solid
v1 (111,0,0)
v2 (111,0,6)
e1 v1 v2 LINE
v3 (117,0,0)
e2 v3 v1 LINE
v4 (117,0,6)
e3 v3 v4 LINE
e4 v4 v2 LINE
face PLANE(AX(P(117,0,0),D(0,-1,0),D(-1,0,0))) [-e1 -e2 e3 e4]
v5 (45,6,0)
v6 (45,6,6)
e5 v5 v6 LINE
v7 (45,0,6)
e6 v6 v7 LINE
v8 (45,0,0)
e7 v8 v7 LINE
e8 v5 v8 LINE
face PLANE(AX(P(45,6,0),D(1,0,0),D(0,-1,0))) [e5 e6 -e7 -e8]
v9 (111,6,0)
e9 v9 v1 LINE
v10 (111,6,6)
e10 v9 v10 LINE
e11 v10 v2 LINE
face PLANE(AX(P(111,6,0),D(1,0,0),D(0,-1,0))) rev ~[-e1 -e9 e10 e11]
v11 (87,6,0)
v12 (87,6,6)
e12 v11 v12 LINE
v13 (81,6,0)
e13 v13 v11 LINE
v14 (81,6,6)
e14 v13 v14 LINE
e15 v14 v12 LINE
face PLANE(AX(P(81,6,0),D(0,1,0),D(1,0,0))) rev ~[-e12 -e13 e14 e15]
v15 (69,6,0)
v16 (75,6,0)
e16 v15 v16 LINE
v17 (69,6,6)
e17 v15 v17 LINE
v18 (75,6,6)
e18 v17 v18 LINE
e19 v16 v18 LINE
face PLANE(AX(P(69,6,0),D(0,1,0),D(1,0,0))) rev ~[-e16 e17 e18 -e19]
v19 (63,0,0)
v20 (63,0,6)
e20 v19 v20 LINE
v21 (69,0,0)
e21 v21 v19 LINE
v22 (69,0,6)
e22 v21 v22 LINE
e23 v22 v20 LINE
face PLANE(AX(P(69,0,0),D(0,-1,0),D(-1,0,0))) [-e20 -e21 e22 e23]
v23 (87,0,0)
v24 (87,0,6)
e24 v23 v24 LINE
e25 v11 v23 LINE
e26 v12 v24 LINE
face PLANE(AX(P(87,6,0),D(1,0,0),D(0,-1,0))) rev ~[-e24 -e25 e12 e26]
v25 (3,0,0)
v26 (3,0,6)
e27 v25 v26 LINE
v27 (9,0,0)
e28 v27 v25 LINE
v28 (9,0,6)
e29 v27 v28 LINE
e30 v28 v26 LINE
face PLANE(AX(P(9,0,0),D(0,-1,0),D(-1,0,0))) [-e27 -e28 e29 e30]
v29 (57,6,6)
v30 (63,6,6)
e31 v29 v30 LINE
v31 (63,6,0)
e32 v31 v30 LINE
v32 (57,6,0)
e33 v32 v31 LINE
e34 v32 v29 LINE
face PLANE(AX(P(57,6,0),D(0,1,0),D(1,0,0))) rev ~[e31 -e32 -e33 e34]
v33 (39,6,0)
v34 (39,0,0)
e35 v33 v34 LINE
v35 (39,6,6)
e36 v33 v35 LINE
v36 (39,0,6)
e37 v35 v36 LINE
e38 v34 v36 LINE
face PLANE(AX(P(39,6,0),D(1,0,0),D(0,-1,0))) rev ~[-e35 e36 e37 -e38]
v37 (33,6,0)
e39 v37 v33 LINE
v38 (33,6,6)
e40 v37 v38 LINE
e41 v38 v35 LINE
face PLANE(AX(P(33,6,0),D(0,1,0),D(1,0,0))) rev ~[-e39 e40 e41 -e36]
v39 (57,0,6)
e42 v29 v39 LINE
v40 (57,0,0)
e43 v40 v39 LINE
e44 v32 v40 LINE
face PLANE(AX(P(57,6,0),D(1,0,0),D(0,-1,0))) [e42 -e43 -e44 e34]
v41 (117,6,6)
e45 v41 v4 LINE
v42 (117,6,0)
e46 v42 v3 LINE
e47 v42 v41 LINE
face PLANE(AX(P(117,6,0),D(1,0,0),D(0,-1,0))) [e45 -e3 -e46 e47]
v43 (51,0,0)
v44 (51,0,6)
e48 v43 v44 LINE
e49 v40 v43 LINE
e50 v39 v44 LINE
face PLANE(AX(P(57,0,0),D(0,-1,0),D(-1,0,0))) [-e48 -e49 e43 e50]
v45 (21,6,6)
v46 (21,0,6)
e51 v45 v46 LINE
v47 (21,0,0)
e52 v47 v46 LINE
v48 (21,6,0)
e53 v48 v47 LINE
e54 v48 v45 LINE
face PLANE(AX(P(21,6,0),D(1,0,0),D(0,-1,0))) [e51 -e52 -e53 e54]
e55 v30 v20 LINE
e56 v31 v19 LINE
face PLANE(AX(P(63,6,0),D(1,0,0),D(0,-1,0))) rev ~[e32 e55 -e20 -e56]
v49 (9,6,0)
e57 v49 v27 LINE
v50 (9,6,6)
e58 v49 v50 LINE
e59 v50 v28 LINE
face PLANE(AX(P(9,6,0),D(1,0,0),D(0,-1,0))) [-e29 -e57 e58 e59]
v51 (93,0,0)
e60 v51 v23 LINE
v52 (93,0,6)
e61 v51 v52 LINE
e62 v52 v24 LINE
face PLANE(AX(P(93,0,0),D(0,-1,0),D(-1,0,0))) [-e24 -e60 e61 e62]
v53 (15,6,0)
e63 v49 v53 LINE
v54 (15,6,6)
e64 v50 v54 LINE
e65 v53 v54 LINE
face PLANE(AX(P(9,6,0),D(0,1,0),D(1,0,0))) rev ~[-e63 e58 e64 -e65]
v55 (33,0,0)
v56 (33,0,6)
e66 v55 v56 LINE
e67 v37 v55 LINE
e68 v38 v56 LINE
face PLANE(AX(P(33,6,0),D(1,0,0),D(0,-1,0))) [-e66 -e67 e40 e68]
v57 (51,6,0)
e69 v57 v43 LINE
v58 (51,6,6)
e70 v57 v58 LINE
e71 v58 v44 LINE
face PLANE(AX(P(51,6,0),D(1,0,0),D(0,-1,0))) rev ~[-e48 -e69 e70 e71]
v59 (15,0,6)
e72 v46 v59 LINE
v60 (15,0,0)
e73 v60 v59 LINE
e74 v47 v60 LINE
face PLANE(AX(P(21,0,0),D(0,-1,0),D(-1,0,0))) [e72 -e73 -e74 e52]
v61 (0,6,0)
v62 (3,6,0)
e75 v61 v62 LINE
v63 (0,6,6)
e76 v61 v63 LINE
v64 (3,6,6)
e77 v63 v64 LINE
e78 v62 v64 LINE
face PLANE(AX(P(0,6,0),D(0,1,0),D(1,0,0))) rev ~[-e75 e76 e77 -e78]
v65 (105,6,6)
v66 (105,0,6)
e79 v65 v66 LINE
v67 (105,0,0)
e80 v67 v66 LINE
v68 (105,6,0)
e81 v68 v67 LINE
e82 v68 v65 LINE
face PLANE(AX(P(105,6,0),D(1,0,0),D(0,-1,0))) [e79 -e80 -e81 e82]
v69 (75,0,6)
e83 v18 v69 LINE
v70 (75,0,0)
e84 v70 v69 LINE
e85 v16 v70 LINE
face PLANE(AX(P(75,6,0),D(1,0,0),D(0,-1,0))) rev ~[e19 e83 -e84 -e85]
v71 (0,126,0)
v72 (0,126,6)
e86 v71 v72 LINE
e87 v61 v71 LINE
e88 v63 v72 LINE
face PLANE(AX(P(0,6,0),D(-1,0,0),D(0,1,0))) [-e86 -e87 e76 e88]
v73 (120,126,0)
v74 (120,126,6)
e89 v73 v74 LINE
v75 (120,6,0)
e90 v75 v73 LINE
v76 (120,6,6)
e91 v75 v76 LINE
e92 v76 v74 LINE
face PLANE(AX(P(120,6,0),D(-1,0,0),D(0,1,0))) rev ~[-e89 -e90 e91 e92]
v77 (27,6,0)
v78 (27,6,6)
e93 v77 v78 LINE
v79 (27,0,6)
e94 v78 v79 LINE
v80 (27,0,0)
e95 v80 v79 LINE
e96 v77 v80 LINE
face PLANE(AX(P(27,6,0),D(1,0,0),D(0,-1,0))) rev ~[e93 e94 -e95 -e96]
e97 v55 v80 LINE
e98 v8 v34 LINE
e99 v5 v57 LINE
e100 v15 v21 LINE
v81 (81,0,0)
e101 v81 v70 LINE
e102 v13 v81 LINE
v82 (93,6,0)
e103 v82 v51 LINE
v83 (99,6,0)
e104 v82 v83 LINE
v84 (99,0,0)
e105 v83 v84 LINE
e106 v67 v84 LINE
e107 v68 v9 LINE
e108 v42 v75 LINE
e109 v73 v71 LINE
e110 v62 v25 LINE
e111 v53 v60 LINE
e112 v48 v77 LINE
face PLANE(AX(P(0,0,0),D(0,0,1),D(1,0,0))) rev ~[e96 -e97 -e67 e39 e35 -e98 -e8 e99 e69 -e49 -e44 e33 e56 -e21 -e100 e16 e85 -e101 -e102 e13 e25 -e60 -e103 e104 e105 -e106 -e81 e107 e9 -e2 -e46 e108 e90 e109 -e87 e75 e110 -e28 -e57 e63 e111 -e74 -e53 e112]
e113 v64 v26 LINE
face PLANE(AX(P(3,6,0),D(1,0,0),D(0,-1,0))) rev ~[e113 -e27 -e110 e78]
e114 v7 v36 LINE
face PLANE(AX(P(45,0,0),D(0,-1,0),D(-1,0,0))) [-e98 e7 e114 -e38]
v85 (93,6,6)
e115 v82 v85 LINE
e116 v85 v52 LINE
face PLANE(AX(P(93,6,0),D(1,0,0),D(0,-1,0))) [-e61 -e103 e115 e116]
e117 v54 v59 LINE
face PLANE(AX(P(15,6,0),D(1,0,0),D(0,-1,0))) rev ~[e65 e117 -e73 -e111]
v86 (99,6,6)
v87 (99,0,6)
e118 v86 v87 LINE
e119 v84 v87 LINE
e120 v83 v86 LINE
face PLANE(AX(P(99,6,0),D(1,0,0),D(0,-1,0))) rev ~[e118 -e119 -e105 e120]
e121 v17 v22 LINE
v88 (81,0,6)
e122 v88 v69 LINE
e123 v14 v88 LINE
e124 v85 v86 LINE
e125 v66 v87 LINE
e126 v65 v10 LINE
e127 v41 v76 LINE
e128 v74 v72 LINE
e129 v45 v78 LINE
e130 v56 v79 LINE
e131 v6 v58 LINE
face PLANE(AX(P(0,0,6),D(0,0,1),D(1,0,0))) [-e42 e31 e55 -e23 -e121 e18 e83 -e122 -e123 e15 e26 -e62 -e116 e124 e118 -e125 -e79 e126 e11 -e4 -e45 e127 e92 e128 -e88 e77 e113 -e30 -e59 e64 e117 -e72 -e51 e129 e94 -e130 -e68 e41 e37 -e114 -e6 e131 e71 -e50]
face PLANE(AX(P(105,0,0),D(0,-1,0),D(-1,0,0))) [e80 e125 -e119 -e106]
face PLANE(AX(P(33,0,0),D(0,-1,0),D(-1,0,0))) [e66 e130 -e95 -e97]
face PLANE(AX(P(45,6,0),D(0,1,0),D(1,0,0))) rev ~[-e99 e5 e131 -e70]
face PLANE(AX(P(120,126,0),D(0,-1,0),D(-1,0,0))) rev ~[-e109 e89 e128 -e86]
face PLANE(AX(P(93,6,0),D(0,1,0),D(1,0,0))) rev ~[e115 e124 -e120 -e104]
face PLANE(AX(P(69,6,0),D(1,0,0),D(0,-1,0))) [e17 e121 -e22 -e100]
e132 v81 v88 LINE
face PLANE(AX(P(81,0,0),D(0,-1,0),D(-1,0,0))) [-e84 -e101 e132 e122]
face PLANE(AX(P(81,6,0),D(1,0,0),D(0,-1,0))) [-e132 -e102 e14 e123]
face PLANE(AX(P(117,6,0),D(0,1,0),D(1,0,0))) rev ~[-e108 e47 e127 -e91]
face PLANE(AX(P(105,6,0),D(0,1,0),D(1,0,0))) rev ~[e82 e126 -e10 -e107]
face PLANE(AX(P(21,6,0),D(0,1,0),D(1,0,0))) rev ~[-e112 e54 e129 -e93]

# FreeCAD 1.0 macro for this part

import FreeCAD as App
import Part
import Sketcher
Q = App.Units.Quantity


def add_polygon(sketch, points):
    """Adds a closed chain of lines whose ends are joined by coincident constraints."""
    first, n = sketch.GeometryCount, len(points)
    for a, b in zip(points, points[1:] + points[:1]):
        sketch.addGeometry(Part.LineSegment(App.Vector(*a, 0), App.Vector(*b, 0)), False)
    for i in range(n):
        sketch.addConstraint(Sketcher.Constraint("Coincident", first + i, 2, first + (i + 1) % n, 1))

doc = App.newDocument("Part")
params = doc.addObject("Spreadsheet::Sheet", "Params")
for row, (alias, value) in enumerate([
    ("sketch1_width", "3 mm"),
    ("sketch1_width2", "6 mm"),
    ("pad1_length", "6 mm"),
], start=1):
    params.set(f"A{row}", alias)
    params.set(f"B{row}", "=" + value)
    params.setAlias(f"B{row}", alias)

body = doc.addObject("PartDesign::Body", "Body")

# Sketch on XY plane
sketch1 = body.newObject("Sketcher::SketchObject", "Sketch")
sketch1.AttachmentSupport = (doc.getObject("XY_Plane"), [""])
sketch1.MapMode = "FlatFace"
add_polygon(sketch1, [(0, 126), (0, 6), (3, 6), (3, 0), (9, 0), (9, 6), (15, 6), (15, 0), (21, 0), (21, 6), (27, 6), (27, 0), (33, 0), (33, 6), (39, 6), (39, 0), (45, 0), (45, 6), (51, 6), (51, 0), (57, 0), (57, 6), (63, 6), (63, 0), (69, 0), (69, 6), (75, 6), (75, 0), (81, 0), (81, 6), (87, 6), (87, 0), (93, 0), (93, 6), (99, 6), (99, 0), (105, 0), (105, 6), (111, 6), (111, 0), (117, 0), (117, 6), (120, 6), (120, 126)])  # lines 0-43
sketch1.addConstraint([
    Sketcher.Constraint("Vertical", 0),
    Sketcher.Constraint("Horizontal", 1),
    Sketcher.Constraint("Vertical", 2),
    Sketcher.Constraint("Horizontal", 3),
    Sketcher.Constraint("Vertical", 4),
    Sketcher.Constraint("Horizontal", 5),
    Sketcher.Constraint("Vertical", 6),
    Sketcher.Constraint("Horizontal", 7),
    Sketcher.Constraint("Vertical", 8),
    Sketcher.Constraint("Horizontal", 9),
    Sketcher.Constraint("Vertical", 10),
    Sketcher.Constraint("Horizontal", 11),
    Sketcher.Constraint("Vertical", 12),
    Sketcher.Constraint("Horizontal", 13),
    Sketcher.Constraint("Vertical", 14),
    Sketcher.Constraint("Horizontal", 15),
    Sketcher.Constraint("Vertical", 16),
    Sketcher.Constraint("Horizontal", 17),
    Sketcher.Constraint("Vertical", 18),
    Sketcher.Constraint("Horizontal", 19),
    Sketcher.Constraint("Vertical", 20),
    Sketcher.Constraint("Horizontal", 21),
    Sketcher.Constraint("Vertical", 22),
    Sketcher.Constraint("Horizontal", 23),
    Sketcher.Constraint("Vertical", 24),
    Sketcher.Constraint("Horizontal", 25),
    Sketcher.Constraint("Vertical", 26),
    Sketcher.Constraint("Horizontal", 27),
    Sketcher.Constraint("Vertical", 28),
    Sketcher.Constraint("Horizontal", 29),
    Sketcher.Constraint("Vertical", 30),
    Sketcher.Constraint("Horizontal", 31),
    Sketcher.Constraint("Vertical", 32),
    Sketcher.Constraint("Horizontal", 33),
    Sketcher.Constraint("Vertical", 34),
    Sketcher.Constraint("Horizontal", 35),
    Sketcher.Constraint("Vertical", 36),
    Sketcher.Constraint("Horizontal", 37),
    Sketcher.Constraint("Vertical", 38),
    Sketcher.Constraint("Horizontal", 39),
    Sketcher.Constraint("Vertical", 40),
    Sketcher.Constraint("Horizontal", 41),
    Sketcher.Constraint("Vertical", 42),
    Sketcher.Constraint("Horizontal", 43),
    Sketcher.Constraint("PointOnObject", 0, 2, -2),
    Sketcher.Constraint("PointOnObject", 2, 2, -1),
    Sketcher.Constraint("PointOnObject", 6, 2, -1),
    Sketcher.Constraint("PointOnObject", 10, 2, -1),
    Sketcher.Constraint("PointOnObject", 14, 2, -1),
    Sketcher.Constraint("PointOnObject", 18, 2, -1),
    Sketcher.Constraint("PointOnObject", 22, 2, -1),
    Sketcher.Constraint("PointOnObject", 26, 2, -1),
    Sketcher.Constraint("PointOnObject", 30, 2, -1),
    Sketcher.Constraint("PointOnObject", 34, 2, -1),
    Sketcher.Constraint("PointOnObject", 38, 2, -1),
    Sketcher.Constraint("Horizontal", 1, 2, 4, 2),
    Sketcher.Constraint("Horizontal", 5, 2, 8, 2),
    Sketcher.Constraint("Horizontal", 9, 2, 12, 2),
    Sketcher.Constraint("Horizontal", 13, 2, 16, 2),
    Sketcher.Constraint("Horizontal", 17, 2, 20, 2),
    Sketcher.Constraint("Horizontal", 21, 2, 24, 2),
    Sketcher.Constraint("Horizontal", 25, 2, 28, 2),
    Sketcher.Constraint("Horizontal", 29, 2, 32, 2),
    Sketcher.Constraint("Horizontal", 33, 2, 36, 2),
    Sketcher.Constraint("Horizontal", 37, 2, 40, 2),
    Sketcher.Constraint("Equal", 3, 5),
    Sketcher.Constraint("Equal", 5, 7),
    Sketcher.Constraint("Equal", 7, 9),
    Sketcher.Constraint("Equal", 9, 11),
    Sketcher.Constraint("Equal", 11, 13),
    Sketcher.Constraint("Equal", 13, 15),
    Sketcher.Constraint("Equal", 15, 17),
    Sketcher.Constraint("Equal", 17, 19),
    Sketcher.Constraint("Equal", 19, 21),
    Sketcher.Constraint("Equal", 21, 23),
    Sketcher.Constraint("Equal", 23, 25),
    Sketcher.Constraint("Equal", 25, 27),
    Sketcher.Constraint("Equal", 27, 29),
    Sketcher.Constraint("Equal", 29, 31),
    Sketcher.Constraint("Equal", 31, 33),
    Sketcher.Constraint("Equal", 33, 35),
    Sketcher.Constraint("Equal", 35, 37),
    Sketcher.Constraint("Equal", 37, 39),
    Sketcher.Constraint("Equal", 1, 41),
    Sketcher.Constraint("Equal", 43, 0),
    Sketcher.Constraint("Equal", 39, 2),
    Sketcher.Constraint("DistanceX", 1, 1, 1, 2, Q("3 mm")),
    Sketcher.Constraint("DistanceX", 3, 1, 3, 2, Q("6 mm")),
])
sketch1.setExpression("Constraints[130]", "Params.sketch1_width")
sketch1.setExpression("Constraints[131]", "Params.sketch1_width2")
pad1 = body.newObject("PartDesign::Pad", "Pad")
pad1.Profile = sketch1
pad1.setExpression("Length", "Params.pad1_length")

doc.recompute()
